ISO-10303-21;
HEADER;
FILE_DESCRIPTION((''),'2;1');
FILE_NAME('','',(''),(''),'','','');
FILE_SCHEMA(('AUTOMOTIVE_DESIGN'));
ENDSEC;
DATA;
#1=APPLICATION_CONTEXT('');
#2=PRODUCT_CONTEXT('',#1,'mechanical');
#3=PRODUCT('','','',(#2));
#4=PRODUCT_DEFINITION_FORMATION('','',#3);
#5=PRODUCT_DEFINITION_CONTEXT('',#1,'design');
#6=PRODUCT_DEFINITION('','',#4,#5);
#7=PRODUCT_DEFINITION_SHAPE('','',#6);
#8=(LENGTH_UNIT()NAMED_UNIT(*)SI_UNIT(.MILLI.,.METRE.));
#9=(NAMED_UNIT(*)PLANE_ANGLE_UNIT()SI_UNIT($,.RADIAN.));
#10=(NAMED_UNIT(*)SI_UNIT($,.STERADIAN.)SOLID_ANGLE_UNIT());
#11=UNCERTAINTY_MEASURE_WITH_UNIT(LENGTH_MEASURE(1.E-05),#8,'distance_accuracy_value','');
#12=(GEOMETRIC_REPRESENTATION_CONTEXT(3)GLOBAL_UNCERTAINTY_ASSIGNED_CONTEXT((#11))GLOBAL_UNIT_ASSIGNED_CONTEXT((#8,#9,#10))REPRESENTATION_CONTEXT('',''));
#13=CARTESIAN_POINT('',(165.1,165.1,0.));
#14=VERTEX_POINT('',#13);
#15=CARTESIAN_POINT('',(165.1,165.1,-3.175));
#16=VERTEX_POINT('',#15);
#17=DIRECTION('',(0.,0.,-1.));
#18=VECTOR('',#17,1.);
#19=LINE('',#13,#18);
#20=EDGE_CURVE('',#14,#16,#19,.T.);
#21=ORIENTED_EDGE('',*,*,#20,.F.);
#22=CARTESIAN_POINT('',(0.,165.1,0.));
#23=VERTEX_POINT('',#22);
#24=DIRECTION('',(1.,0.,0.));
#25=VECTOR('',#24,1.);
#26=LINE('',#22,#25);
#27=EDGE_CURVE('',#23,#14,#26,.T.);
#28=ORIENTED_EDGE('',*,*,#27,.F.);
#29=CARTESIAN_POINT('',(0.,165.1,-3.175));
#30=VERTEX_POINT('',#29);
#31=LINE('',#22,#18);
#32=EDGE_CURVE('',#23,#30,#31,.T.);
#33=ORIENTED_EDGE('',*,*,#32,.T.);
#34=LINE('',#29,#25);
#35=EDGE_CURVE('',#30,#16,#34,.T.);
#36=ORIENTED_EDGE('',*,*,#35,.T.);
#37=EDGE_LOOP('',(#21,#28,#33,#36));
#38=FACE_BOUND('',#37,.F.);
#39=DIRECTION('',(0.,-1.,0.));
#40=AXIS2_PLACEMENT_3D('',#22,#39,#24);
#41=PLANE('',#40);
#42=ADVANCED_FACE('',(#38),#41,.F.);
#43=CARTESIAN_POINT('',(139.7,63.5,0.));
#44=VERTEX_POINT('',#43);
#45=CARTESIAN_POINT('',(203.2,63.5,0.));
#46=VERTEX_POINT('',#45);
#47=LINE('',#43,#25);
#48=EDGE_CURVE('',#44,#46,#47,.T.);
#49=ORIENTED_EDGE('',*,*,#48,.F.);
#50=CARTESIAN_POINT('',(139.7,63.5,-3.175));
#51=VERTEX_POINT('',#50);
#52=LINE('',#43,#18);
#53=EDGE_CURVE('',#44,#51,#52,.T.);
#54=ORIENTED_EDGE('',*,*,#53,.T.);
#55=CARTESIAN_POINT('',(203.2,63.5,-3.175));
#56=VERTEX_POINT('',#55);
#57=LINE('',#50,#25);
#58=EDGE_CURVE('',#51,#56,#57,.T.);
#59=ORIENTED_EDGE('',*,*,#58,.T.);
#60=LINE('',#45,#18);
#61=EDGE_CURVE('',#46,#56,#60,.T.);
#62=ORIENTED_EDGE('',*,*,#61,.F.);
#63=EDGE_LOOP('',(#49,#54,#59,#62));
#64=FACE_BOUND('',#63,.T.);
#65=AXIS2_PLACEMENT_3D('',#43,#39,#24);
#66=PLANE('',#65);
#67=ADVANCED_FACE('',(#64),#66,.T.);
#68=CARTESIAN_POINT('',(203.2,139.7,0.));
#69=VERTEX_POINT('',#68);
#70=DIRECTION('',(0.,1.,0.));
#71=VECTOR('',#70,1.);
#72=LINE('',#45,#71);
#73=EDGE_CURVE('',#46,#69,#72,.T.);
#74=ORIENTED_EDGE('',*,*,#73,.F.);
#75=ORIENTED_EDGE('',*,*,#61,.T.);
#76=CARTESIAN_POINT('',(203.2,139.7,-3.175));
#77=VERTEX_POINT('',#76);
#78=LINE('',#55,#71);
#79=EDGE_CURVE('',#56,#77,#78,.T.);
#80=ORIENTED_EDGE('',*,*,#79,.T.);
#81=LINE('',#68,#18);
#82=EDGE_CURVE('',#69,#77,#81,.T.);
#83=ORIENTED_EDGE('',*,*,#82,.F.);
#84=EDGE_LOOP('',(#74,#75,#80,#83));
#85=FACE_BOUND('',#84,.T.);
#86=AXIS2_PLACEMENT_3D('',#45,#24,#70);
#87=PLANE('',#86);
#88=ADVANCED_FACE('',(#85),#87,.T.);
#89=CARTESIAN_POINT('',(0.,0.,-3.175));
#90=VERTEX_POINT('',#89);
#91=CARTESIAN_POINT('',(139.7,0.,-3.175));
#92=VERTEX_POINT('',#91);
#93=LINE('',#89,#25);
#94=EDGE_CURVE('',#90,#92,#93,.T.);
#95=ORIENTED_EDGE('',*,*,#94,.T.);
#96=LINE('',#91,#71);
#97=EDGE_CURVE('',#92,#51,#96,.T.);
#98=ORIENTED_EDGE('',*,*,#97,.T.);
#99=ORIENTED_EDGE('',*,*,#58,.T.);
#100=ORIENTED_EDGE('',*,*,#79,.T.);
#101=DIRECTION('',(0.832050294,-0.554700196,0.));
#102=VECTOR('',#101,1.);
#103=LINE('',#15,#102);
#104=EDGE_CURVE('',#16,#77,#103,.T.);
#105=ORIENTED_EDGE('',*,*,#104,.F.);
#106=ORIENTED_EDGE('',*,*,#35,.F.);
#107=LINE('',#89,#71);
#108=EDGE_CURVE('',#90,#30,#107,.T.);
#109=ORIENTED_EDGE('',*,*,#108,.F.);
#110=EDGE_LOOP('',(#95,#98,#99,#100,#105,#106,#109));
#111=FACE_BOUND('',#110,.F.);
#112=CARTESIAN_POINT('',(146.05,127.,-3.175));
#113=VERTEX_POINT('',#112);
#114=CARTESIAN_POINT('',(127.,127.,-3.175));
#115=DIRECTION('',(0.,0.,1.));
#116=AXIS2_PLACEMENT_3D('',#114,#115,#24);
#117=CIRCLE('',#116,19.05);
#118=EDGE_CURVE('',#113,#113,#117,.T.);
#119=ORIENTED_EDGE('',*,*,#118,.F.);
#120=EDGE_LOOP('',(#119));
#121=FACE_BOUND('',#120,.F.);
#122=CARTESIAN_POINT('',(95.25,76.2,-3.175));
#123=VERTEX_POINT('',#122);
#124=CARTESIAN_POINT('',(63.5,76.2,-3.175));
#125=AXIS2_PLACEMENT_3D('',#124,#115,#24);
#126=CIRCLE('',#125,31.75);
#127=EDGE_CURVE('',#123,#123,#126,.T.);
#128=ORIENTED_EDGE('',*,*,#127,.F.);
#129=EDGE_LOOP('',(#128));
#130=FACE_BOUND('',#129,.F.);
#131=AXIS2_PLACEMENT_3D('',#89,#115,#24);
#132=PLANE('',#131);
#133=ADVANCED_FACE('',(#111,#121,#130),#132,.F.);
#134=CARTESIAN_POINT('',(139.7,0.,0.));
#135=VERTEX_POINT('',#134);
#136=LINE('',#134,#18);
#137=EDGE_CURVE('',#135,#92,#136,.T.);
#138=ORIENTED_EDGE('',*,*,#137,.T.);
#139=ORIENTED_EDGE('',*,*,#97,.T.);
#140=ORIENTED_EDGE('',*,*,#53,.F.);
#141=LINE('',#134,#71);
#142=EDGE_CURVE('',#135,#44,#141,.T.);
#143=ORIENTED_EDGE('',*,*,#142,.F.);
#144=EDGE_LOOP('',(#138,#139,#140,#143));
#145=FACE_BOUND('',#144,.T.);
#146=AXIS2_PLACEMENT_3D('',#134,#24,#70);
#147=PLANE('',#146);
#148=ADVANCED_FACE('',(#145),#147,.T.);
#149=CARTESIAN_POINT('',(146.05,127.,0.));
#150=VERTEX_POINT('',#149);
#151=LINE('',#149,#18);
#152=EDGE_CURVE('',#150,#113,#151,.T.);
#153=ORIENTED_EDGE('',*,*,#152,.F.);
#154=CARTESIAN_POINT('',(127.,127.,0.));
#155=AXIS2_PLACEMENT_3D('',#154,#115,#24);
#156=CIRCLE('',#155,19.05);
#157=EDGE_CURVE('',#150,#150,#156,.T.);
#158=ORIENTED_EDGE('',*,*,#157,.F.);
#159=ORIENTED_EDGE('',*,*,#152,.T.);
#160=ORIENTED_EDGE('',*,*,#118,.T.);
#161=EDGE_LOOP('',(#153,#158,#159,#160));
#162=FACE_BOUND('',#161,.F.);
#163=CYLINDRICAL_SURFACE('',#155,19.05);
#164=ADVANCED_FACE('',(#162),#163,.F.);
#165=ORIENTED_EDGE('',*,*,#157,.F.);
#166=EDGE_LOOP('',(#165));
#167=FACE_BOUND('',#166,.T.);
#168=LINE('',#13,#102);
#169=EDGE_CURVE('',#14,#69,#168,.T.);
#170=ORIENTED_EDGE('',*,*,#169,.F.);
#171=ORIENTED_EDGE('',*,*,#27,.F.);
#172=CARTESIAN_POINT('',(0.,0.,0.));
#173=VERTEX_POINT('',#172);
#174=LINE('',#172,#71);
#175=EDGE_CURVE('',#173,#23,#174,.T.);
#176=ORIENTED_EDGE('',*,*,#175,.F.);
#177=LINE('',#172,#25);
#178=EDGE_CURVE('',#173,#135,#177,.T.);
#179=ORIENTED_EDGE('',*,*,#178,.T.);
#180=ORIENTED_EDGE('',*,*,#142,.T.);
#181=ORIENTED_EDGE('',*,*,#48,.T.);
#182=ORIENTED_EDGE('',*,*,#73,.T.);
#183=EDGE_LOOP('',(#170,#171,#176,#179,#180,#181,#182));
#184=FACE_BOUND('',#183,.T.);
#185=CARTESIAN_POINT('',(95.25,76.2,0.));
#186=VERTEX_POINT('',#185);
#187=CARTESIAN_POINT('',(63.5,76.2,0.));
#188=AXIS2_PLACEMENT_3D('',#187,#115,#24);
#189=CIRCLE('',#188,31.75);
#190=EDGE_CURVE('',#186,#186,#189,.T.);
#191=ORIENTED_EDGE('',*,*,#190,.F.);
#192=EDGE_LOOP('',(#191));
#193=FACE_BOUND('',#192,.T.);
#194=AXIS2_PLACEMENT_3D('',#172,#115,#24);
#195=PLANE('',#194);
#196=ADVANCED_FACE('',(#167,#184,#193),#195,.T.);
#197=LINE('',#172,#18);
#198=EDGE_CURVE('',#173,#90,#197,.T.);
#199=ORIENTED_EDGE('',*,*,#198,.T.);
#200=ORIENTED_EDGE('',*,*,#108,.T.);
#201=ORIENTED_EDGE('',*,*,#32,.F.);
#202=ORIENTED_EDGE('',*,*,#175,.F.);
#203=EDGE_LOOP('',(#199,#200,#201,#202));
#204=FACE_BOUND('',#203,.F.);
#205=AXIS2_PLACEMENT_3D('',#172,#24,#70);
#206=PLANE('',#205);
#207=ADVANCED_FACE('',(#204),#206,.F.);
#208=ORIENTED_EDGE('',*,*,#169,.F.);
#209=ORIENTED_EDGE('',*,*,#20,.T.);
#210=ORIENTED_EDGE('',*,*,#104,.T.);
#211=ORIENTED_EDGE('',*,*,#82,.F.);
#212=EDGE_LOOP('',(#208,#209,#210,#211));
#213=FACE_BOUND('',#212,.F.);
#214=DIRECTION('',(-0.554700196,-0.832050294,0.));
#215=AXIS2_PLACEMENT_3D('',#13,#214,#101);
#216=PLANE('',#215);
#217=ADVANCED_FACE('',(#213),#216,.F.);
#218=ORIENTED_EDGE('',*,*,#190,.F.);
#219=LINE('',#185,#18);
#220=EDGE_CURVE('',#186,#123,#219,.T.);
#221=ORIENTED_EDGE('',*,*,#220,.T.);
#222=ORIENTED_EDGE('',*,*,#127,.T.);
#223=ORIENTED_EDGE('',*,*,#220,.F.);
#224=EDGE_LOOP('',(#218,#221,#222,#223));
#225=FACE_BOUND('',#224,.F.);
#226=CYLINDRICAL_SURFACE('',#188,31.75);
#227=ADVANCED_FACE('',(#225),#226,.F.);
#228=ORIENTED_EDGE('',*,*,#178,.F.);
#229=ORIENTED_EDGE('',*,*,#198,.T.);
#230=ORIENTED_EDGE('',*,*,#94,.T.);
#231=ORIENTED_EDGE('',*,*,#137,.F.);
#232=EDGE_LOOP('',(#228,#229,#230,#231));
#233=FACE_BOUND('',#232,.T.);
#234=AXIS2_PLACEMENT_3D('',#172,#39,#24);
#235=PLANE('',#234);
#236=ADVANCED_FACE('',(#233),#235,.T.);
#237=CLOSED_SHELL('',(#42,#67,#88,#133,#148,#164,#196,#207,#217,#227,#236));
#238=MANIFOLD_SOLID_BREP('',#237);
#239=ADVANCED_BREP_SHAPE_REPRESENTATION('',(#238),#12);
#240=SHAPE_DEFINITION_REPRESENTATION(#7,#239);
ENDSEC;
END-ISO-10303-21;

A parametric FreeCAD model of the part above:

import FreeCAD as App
import Part
import Sketcher

V = App.Vector
Q = App.Units.Quantity


def add_polygon(sketch, points):
    """Adds a closed chain of lines whose ends are joined by coincident constraints."""
    first, n = sketch.GeometryCount, len(points)
    for a, b in zip(points, points[1:] + points[:1]):
        sketch.addGeometry(Part.LineSegment(App.Vector(*a, 0), App.Vector(*b, 0)), False)
    for i in range(n):
        sketch.addConstraint(Sketcher.Constraint("Coincident", first + i, 2, first + (i + 1) % n, 1))

doc = App.newDocument("Part")
body = doc.addObject("PartDesign::Body", "Body")

sketch1 = body.newObject("Sketcher::SketchObject", "Sketch")
sketch1.AttachmentSupport = (doc.getObject("XY_Plane"), [""])
sketch1.MapMode = "FlatFace"
add_polygon(sketch1, [(0, 165), (0, 0), (140, 0), (140, 64), (203, 64), (203, 140), (165, 165)])
sketch1.addGeometry(Part.Circle(V(64, 76, 0), V(0, 0, 1), 32), False)
sketch1.addGeometry(Part.Circle(V(127, 127, 0), V(0, 0, 1), 19), False)
sketch1.addConstraint(Sketcher.Constraint("Vertical", 0))
sketch1.addConstraint(Sketcher.Constraint("Horizontal", 1))
sketch1.addConstraint(Sketcher.Constraint("Vertical", 2))
sketch1.addConstraint(Sketcher.Constraint("Horizontal", 3))
sketch1.addConstraint(Sketcher.Constraint("Vertical", 4))
sketch1.addConstraint(Sketcher.Constraint("Horizontal", 6))
sketch1.addConstraint(Sketcher.Constraint("Coincident", 0, 2, -1, 1))
sketch1.addConstraint(Sketcher.Constraint("Equal", 6, 0))
sketch1.addConstraint(Sketcher.Constraint("Equal", 3, 2))
sketch1.addConstraint(Sketcher.Constraint("Diameter", 7, Q("2.5 in")))
sketch1.addConstraint(Sketcher.Constraint("Diameter", 8, Q("1.5 in")))
sketch1.addConstraint(Sketcher.Constraint("DistanceY", 4, 1, 4, 2, Q("3 in")))
sketch1.addConstraint(Sketcher.Constraint("DistanceX", 1, 1, 1, 2, Q("5.5 in")))
sketch1.addConstraint(Sketcher.Constraint("DistanceX", 3, 1, 3, 2, Q("2.5 in")))
sketch1.addConstraint(Sketcher.Constraint("DistanceX", 6, 2, 6, 1, Q("6.5 in")))
sketch1.addConstraint(Sketcher.Constraint("DistanceY", -1, 1, 7, 3, Q("3 in")))
sketch1.addConstraint(Sketcher.Constraint("DistanceX", 7, 3, 1, 2, Q("3 in")))
sketch1.addConstraint(Sketcher.Constraint("DistanceX", 8, 3, 3, 2, Q("3 in")))
sketch1.addConstraint(Sketcher.Constraint("DistanceY", 2, 2, 8, 3, Q("2.5 in")))
pad1 = body.newObject("PartDesign::Pad", "Pad")
pad1.Profile = sketch1
pad1.Length = Q("0.125 in")
pad1.Reversed = True

doc.recompute()
